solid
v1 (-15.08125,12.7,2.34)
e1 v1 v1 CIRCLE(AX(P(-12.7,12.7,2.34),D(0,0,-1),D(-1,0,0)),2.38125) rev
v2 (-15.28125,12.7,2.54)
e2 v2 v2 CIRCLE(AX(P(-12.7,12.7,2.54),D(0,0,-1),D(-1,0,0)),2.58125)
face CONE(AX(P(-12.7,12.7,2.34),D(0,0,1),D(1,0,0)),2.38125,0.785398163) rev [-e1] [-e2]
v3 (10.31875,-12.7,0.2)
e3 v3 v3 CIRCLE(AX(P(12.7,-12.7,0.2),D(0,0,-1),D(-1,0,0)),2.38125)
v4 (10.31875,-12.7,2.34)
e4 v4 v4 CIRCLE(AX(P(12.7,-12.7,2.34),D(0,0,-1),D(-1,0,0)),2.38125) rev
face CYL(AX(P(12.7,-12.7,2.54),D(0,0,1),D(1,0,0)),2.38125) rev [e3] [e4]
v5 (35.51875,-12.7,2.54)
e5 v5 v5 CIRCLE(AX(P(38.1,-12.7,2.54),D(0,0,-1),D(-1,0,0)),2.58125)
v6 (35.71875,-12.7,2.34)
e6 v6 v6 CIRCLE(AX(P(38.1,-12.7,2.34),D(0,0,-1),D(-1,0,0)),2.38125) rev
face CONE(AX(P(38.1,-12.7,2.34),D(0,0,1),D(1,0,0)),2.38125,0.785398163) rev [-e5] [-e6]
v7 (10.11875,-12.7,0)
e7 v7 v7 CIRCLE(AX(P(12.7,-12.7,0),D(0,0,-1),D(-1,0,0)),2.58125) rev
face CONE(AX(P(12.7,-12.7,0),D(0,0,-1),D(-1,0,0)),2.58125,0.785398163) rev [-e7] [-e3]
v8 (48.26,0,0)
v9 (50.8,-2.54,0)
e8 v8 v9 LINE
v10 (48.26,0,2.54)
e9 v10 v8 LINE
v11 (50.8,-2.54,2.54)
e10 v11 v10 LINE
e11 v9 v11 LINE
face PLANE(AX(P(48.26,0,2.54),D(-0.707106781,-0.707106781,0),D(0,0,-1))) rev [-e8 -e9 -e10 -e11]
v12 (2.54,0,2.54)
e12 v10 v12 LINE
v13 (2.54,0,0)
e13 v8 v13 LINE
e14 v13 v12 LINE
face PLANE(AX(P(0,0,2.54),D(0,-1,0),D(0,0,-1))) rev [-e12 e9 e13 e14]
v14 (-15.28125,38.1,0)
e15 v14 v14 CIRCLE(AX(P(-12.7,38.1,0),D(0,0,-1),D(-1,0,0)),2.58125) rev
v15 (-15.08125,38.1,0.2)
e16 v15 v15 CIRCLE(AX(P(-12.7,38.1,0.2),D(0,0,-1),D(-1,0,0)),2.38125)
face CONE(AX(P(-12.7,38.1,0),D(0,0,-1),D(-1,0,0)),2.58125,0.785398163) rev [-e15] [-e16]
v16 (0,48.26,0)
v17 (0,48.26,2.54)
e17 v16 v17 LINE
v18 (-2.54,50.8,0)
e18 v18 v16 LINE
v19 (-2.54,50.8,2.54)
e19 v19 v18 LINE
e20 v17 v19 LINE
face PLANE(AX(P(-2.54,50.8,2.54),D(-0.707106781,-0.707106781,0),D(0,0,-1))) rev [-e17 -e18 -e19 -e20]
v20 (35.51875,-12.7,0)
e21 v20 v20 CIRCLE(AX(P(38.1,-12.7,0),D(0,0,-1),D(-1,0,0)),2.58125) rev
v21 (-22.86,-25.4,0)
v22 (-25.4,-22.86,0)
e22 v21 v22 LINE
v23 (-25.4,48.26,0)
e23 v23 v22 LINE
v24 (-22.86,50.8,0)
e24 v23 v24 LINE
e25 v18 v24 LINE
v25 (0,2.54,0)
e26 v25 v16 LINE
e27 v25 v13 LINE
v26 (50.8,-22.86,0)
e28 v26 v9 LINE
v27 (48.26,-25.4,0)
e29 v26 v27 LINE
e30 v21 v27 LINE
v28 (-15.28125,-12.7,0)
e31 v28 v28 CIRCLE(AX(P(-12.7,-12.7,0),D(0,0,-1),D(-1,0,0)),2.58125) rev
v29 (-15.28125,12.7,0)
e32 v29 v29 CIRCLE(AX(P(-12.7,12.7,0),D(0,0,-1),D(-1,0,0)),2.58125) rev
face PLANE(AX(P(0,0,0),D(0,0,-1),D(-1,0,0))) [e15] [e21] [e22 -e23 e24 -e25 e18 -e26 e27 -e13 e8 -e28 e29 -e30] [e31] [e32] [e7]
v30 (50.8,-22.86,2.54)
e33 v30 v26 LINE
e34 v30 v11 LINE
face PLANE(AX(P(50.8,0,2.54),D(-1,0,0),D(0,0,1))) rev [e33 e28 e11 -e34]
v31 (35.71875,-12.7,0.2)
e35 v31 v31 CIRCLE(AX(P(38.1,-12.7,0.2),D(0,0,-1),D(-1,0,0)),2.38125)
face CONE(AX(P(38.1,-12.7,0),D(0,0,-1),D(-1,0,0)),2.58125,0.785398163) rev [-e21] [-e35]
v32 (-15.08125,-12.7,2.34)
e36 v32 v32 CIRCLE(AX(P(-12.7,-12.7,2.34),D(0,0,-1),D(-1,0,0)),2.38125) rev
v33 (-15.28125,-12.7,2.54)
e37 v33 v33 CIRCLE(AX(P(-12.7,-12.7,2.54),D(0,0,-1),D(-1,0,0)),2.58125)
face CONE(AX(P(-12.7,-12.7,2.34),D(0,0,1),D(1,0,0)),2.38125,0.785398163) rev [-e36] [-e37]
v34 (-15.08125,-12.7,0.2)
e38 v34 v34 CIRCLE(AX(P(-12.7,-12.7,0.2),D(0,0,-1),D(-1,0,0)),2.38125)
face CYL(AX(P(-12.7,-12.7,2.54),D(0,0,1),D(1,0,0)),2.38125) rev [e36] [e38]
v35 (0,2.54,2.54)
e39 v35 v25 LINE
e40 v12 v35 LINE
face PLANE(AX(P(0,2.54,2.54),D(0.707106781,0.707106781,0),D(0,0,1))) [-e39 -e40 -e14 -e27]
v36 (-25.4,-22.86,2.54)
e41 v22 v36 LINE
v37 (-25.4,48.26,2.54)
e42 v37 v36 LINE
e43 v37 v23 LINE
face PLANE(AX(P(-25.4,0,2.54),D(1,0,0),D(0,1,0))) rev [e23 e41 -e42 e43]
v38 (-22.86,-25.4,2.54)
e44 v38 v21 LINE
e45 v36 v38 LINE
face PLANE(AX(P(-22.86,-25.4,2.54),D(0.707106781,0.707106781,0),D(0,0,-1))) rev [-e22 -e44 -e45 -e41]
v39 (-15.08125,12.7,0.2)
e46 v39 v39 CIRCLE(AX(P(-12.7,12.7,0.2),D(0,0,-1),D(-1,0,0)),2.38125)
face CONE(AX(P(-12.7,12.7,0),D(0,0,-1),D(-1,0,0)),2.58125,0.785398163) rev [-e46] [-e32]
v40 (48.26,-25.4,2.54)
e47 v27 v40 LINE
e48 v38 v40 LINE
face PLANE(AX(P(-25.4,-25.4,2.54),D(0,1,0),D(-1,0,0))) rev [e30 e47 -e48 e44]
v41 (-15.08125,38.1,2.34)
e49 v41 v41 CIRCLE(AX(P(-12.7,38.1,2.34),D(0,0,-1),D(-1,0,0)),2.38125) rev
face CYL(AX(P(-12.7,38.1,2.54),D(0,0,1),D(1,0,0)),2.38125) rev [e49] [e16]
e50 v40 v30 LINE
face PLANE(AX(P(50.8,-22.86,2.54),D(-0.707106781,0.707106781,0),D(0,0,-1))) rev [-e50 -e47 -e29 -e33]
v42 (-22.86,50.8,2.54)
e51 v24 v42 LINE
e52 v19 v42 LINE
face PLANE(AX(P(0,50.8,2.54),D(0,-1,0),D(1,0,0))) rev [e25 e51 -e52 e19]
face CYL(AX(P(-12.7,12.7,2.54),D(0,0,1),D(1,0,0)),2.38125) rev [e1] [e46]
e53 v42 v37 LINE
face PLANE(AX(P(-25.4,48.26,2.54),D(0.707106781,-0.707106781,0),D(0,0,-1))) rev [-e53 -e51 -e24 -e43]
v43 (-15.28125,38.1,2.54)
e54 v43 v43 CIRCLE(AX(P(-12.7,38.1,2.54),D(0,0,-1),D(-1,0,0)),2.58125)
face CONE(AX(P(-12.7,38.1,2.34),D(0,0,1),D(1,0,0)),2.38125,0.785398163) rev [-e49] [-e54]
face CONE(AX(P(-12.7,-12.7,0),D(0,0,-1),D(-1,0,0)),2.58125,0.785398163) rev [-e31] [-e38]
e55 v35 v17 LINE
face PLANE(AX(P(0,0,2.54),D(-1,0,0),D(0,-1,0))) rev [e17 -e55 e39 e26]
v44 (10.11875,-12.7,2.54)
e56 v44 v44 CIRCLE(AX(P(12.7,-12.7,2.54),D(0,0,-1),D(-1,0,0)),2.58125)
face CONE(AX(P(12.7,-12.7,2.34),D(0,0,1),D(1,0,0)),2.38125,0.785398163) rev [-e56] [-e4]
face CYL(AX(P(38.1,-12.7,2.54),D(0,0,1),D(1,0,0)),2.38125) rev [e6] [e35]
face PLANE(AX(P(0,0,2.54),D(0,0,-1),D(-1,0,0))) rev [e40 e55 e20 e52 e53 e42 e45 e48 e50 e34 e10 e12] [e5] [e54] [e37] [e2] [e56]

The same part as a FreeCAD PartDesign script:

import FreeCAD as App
import Part
import Sketcher
Q = App.Units.Quantity


def edges_at(feature, points):
    """Names of the edges that pass closest to the given points."""
    edges = feature.Shape.Edges
    near = lambda p: min(range(len(edges)), key=lambda i: edges[i].distToShape(Part.Vertex(*p))[0])
    return sorted({f"Edge{near(p) + 1}" for p in points})

doc = App.newDocument("Part")
body = doc.addObject("PartDesign::Body", "Body")

sketch1 = body.newObject("Sketcher::SketchObject", "Sketch")
sketch1.AttachmentSupport = (doc.getObject("XY_Plane"), [""])
sketch1.MapMode = "FlatFace"
sketch1.addGeometry([
    Part.LineSegment(App.Vector(0, 0, 0), App.Vector(0, 51, 0)),
    Part.LineSegment(App.Vector(0, 51, 0), App.Vector(-25, 51, 0)),
    Part.LineSegment(App.Vector(-25, 51, 0), App.Vector(-25, -25, 0)),
    Part.LineSegment(App.Vector(-25, -25, 0), App.Vector(51, -25, 0)),
    Part.LineSegment(App.Vector(51, -25, 0), App.Vector(51, 0, 0)),
    Part.LineSegment(App.Vector(51, 0, 0), App.Vector(0, 0, 0)),
], False)
sketch1.addConstraint([
    Sketcher.Constraint("Coincident", 0, 2, 1, 1),
    Sketcher.Constraint("Coincident", 1, 2, 2, 1),
    Sketcher.Constraint("Coincident", 2, 2, 3, 1),
    Sketcher.Constraint("Coincident", 3, 2, 4, 1),
    Sketcher.Constraint("Coincident", 4, 2, 5, 1),
    Sketcher.Constraint("Coincident", 5, 2, 0, 1),
    Sketcher.Constraint("Vertical", 0),
    Sketcher.Constraint("Horizontal", 1),
    Sketcher.Constraint("Vertical", 2),
    Sketcher.Constraint("Horizontal", 3),
    Sketcher.Constraint("Vertical", 4),
    Sketcher.Constraint("Horizontal", 5),
    Sketcher.Constraint("Coincident", 5, 2, -1, 1),
    Sketcher.Constraint("Equal", 5, 0),
    Sketcher.Constraint("Equal", 3, 2),
    Sketcher.Constraint("DistanceX", 1, 2, 1, 1, Q("1 in")),
    Sketcher.Constraint("DistanceX", 3, 1, 3, 2, Q("3 in")),
])
pad1 = body.newObject("PartDesign::Pad", "Pad")
pad1.Profile = sketch1
pad1.Length = Q("0.1 in")

sketch2 = body.newObject("Sketcher::SketchObject", "Sketch001")
sketch2.AttachmentSupport = (doc.getObject("XY_Plane"), [""])
sketch2.MapMode = "FlatFace"
sketch2.AttachmentOffset = App.Placement(App.Vector(0, 0, 0.1 * 25.4), App.Rotation())
sketch2.addGeometry([
    Part.Circle(App.Vector(-12.7, 38.1, 0), App.Vector(0, 0, 1), 2.4),
    Part.Circle(App.Vector(-12.7, 12.7, 0), App.Vector(0, 0, 1), 2.4),
    Part.Circle(App.Vector(-12.7, -12.7, 0), App.Vector(0, 0, 1), 2.4),
    Part.Circle(App.Vector(12.7, -12.7, 0), App.Vector(0, 0, 1), 2.4),
    Part.Circle(App.Vector(38.1, -12.7, 0), App.Vector(0, 0, 1), 2.4),
], False)
sketch2.addConstraint([
    Sketcher.Constraint("Equal", 0, 1),
    Sketcher.Constraint("Equal", 1, 2),
    Sketcher.Constraint("Equal", 2, 3),
    Sketcher.Constraint("Equal", 3, 4),
    Sketcher.Constraint("Symmetric", 1, 3, 3, 3, -1, 1),
    Sketcher.Constraint("Symmetric", 2, 3, 3, 3, -2),
    Sketcher.Constraint("Horizontal", 3, 3, 4, 3),
    Sketcher.Constraint("Vertical", 0, 3, 1, 3),
    Sketcher.Constraint("Diameter", 0, Q("0.1875 in")),
    Sketcher.Constraint("DistanceY", 1, 3, 0, 3, Q("1 in")),
    Sketcher.Constraint("DistanceY", 2, 3, 1, 3, Q("1 in")),
    Sketcher.Constraint("DistanceX", 2, 3, 3, 3, Q("1 in")),
    Sketcher.Constraint("DistanceX", 3, 3, 4, 3, Q("1 in")),
])
doc.recompute()
hole = body.newObject("PartDesign::Hole", "Hole")
hole.Profile = sketch2
hole.ThreadType = "None"
hole.Diameter = Q("0.1875 in")
hole.DepthType = "ThroughAll"
doc.recompute()

chamfer = body.newObject("PartDesign::Chamfer", "Chamfer")
chamfer.Base = (hole, edges_at(hole, [
    (50.8, 0, 1.27),
    (50.8, -25.4, 1.27),
    (-25.4, -25.4, 1.27),
    (-25.4, 50.8, 1.27),
    (0, 50.8, 1.27),
    (0, 0, 1.27),
]))
chamfer.Size = Q("0.1 in")
doc.recompute()

chamfer2 = body.newObject("PartDesign::Chamfer", "Chamfer001")
chamfer2.Base = (chamfer, edges_at(chamfer, [
    (40.481, -12.7, 2.54),
    (40.481, -12.7, 0),
    (15.081, -12.7, 2.54),
    (15.081, -12.7, 0),
    (-10.319, -12.7, 2.54),
    (-10.319, -12.7, 0),
    (-10.319, 12.7, 2.54),
    (-10.319, 12.7, 0),
    (-10.319, 38.1, 2.54),
    (-10.319, 38.1, 0),
]))
chamfer2.Size = 0.2

doc.recompute()
